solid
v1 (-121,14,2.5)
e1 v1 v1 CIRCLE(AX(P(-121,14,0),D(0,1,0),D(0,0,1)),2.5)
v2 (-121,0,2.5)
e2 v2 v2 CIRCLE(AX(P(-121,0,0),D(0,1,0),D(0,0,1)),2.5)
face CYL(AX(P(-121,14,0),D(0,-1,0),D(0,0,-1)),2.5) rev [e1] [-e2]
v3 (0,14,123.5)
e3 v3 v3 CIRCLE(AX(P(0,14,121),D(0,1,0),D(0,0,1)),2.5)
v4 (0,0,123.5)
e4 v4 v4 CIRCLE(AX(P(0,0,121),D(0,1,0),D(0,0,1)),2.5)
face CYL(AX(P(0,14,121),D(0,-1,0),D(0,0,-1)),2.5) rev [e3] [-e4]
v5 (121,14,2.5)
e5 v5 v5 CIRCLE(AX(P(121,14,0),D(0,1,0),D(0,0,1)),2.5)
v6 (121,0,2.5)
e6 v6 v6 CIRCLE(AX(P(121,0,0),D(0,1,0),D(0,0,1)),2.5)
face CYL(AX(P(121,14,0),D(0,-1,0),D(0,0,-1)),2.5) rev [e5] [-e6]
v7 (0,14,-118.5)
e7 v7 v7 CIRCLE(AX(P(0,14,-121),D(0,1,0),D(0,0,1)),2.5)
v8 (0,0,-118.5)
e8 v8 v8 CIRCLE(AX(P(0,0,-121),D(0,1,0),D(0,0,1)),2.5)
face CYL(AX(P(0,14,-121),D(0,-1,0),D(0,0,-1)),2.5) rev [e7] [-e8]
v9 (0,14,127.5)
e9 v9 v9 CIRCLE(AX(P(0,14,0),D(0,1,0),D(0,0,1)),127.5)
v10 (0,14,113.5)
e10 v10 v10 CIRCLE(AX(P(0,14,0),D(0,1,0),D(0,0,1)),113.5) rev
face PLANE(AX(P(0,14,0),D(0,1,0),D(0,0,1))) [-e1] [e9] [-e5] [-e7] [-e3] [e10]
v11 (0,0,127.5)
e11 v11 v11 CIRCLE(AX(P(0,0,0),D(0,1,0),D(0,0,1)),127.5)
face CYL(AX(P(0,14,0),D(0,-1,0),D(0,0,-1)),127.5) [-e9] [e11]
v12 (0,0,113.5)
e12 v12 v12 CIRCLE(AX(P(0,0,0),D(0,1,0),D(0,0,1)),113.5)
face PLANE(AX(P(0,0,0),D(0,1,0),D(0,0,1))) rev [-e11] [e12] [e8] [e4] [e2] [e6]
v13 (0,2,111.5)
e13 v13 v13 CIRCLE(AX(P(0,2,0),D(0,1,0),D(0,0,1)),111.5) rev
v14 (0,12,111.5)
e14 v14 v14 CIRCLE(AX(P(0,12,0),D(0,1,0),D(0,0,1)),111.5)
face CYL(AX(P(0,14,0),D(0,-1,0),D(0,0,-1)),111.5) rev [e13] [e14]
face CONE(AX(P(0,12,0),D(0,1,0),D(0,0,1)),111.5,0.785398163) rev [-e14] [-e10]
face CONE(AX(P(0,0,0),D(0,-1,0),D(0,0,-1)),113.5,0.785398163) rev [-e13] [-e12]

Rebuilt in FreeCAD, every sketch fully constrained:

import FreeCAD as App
import Part
import Sketcher

V = App.Vector
Q = App.Units.Quantity


def edges_at(feature, points):
    """Names of the edges that pass closest to the given points."""
    edges = feature.Shape.Edges
    near = lambda p: min(range(len(edges)), key=lambda i: edges[i].distToShape(Part.Vertex(*p))[0])
    return sorted({f"Edge{near(p) + 1}" for p in points})

doc = App.newDocument("Part")
body = doc.addObject("PartDesign::Body", "Body")

# Sketch on XZ plane
sketch1 = doc.addObject("Sketcher::SketchObject", "Sketch")
body.addObject(sketch1)
sketch1.AttachmentSupport = (doc.XZ_Plane, [""])
sketch1.MapMode = "FlatFace"
sketch1.addGeometry(Part.Circle(V(0, 0, 0), V(0, 0, 1), 127.5), False)
sketch1.addGeometry(Part.Circle(V(0, -121, 0), V(0, 0, 1), 2.5), False)
sketch1.addGeometry(Part.Circle(V(-121, 0, 0), V(0, 0, 1), 2.5), False)
sketch1.addGeometry(Part.Circle(V(121, 0, 0), V(0, 0, 1), 2.5), False)
sketch1.addGeometry(Part.Circle(V(0, 0, 0), V(0, 0, 1), 111.5), False)
sketch1.addGeometry(Part.Circle(V(0, 121, 0), V(0, 0, 1), 2.5), False)
sketch1.addConstraint(Sketcher.Constraint("Coincident", 0, 3, -1, 1))
sketch1.addConstraint(Sketcher.Constraint("Coincident", 4, 3, -1, 1))
sketch1.addConstraint(Sketcher.Constraint("Equal", 1, 2))
sketch1.addConstraint(Sketcher.Constraint("Equal", 2, 3))
sketch1.addConstraint(Sketcher.Constraint("Equal", 3, 5))
sketch1.addConstraint(Sketcher.Constraint("Symmetric", 2, 3, 3, 3, -1, 1))
sketch1.addConstraint(Sketcher.Constraint("Symmetric", 1, 3, 5, 3, -1, 1))
sketch1.addConstraint(Sketcher.Constraint("PointOnObject", 1, 3, -2))
sketch1.addConstraint(Sketcher.Constraint("PointOnObject", 2, 3, -1))
sketch1.addConstraint(Sketcher.Constraint("Diameter", 0, Q("255 mm")))
sketch1.addConstraint(Sketcher.Constraint("Diameter", 1, Q("5 mm")))
sketch1.addConstraint(Sketcher.Constraint("Diameter", 4, Q("223 mm")))
sketch1.addConstraint(Sketcher.Constraint("DistanceY", 1, 3, -1, 1, Q("121 mm")))
sketch1.addConstraint(Sketcher.Constraint("DistanceX", 2, 3, -1, 1, Q("121 mm")))
pad1 = doc.addObject("PartDesign::Pad", "Pad")
body.addObject(pad1)
pad1.Profile = sketch1
pad1.Length = 14
pad1.Reversed = True
doc.recompute()

chamfer = doc.addObject("PartDesign::Chamfer", "Chamfer")
body.addObject(chamfer)
chamfer.Base = (pad1, edges_at(pad1, [(0, 0, -111.5), (0, 14, -111.5)]))
chamfer.Size = 2

doc.recompute()
